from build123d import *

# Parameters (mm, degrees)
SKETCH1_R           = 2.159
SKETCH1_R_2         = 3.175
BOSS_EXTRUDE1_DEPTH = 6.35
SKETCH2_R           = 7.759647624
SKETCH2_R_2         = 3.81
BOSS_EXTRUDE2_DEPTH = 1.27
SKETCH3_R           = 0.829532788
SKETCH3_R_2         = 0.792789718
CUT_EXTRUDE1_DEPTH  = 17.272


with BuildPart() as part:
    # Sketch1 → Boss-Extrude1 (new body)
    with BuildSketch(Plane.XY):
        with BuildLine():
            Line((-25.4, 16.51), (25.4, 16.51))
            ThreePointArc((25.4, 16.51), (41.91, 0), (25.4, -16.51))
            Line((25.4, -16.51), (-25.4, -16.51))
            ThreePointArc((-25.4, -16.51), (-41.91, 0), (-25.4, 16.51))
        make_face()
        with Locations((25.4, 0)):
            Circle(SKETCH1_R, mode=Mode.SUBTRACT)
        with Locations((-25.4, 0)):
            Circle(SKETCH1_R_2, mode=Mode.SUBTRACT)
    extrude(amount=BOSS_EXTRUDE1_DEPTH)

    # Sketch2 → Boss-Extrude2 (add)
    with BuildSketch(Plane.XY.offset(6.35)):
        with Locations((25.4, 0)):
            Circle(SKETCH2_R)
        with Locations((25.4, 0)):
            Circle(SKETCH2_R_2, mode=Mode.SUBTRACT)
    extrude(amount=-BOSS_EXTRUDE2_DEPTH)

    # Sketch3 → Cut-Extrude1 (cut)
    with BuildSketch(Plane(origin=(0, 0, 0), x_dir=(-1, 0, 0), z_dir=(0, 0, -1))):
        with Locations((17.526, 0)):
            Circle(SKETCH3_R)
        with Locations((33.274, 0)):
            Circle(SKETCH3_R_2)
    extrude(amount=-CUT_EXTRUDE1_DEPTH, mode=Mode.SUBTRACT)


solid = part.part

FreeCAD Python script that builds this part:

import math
import FreeCAD as App
import Part
import Sketcher
Q = App.Units.Quantity

doc = App.newDocument("Part")
params = doc.addObject("Spreadsheet::Sheet", "Params")
for row, (alias, value) in enumerate([
    ("sketch1_diameter", "0.17 in"),
    ("sketch1_diameter2", "0.25 in"),
    ("sketch1_width", "2 in"),
    ("sketch1_radius", "0.65 in"),
    ("pad1_length", "0.25 in"),
    ("sketch2_diameter", "0.3 in"),
    ("pad2_length", "0.05 in"),
    ("pocket1_length", "0.68 in"),
], start=1):
    params.set(f"A{row}", alias)
    params.set(f"B{row}", "=" + value)
    params.setAlias(f"B{row}", alias)

body = doc.addObject("PartDesign::Body", "Body")

# Sketch on XY plane
sketch1 = body.newObject("Sketcher::SketchObject", "Sketch")
sketch1.AttachmentSupport = (doc.getObject("XY_Plane"), [""])
sketch1.MapMode = "FlatFace"
sketch1.addGeometry([
    Part.LineSegment(App.Vector(25.4, 16.5, 0), App.Vector(-25.4, 16.5, 0)),  # 0
    Part.ArcOfCircle(Part.Circle(App.Vector(-25.4, 0, 0), App.Vector(0, 0, 1), 16.5), math.radians(90), math.radians(270)),  # 1
    Part.LineSegment(App.Vector(-25.4, -16.5, 0), App.Vector(25.4, -16.5, 0)),  # 2
    Part.ArcOfCircle(Part.Circle(App.Vector(25.4, 0, 0), App.Vector(0, 0, 1), 16.5), math.radians(-90), math.radians(90)),  # 3
    Part.Circle(App.Vector(25.4, 0, 0), App.Vector(0, 0, 1), 2.2),  # 4
    Part.Circle(App.Vector(-25.4, 0, 0), App.Vector(0, 0, 1), 3.2),  # 5
], False)
sketch1.addConstraint([
    Sketcher.Constraint("Tangent", 0, 2, 1, 1),
    Sketcher.Constraint("Tangent", 1, 2, 2, 1),
    Sketcher.Constraint("Tangent", 2, 2, 3, 1),
    Sketcher.Constraint("Tangent", 3, 2, 0, 1),
    Sketcher.Constraint("Horizontal", 0),
    Sketcher.Constraint("Horizontal", 2),
    Sketcher.Constraint("Coincident", 4, 3, 3, 3),
    Sketcher.Constraint("Coincident", 5, 3, 1, 3),
    Sketcher.Constraint("Symmetric", 1, 3, 3, 3, -1, 1),
    Sketcher.Constraint("Diameter", 4, Q("0.17 in")),
    Sketcher.Constraint("Diameter", 5, Q("0.25 in")),
    Sketcher.Constraint("DistanceX", 0, 2, 0, 1, Q("2 in")),
    Sketcher.Constraint("Radius", 1, Q("0.65 in")),
])
sketch1.setExpression("Constraints[9]", "Params.sketch1_diameter")
sketch1.setExpression("Constraints[10]", "Params.sketch1_diameter2")
sketch1.setExpression("Constraints[11]", "Params.sketch1_width")
sketch1.setExpression("Constraints[12]", "Params.sketch1_radius")
pad1 = body.newObject("PartDesign::Pad", "Pad")
pad1.Profile = sketch1
pad1.setExpression("Length", "Params.pad1_length")

# Sketch on XY plane
sketch2 = body.newObject("Sketcher::SketchObject", "Sketch001")
sketch2.AttachmentSupport = (doc.getObject("XY_Plane"), [""])
sketch2.MapMode = "FlatFace"
sketch2.AttachmentOffset = App.Placement(App.Vector(0, 0, 0.25 * 25.4), App.Rotation())
sketch2.addGeometry([
    Part.Circle(App.Vector(25.4, 0, 0), App.Vector(0, 0, 1), 7.8),
    Part.Circle(App.Vector(25.4, 0, 0), App.Vector(0, 0, 1), 3.8),
], False)
sketch2.addConstraint([
    Sketcher.Constraint("Coincident", 1, 3, 0, 3),
    Sketcher.Constraint("PointOnObject", 0, 3, -1),
    Sketcher.Constraint("Diameter", 1, Q("0.3 in")),
    Sketcher.Constraint("DistanceX", -1, 1, 0, 3, Q("1 in")),
    Sketcher.Constraint("Diameter", 0, Q("15.519295 mm")),
])
sketch2.setExpression("Constraints[2]", "Params.sketch2_diameter")
pad2 = body.newObject("PartDesign::Pad", "Pad001")
pad2.Profile = sketch2
pad2.setExpression("Length", "Params.pad2_length")
pad2.Reversed = True

# Sketch on XY plane
sketch3 = body.newObject("Sketcher::SketchObject", "Sketch002")
sketch3.AttachmentSupport = (doc.getObject("XY_Plane"), [""])
sketch3.MapMode = "FlatFace"
sketch3.addGeometry([
    Part.Circle(App.Vector(-17.5, 0, 0), App.Vector(0, 0, 1), 0.8),
    Part.Circle(App.Vector(-33.3, 0, 0), App.Vector(0, 0, 1), 0.8),
], False)
sketch3.addConstraint([
    Sketcher.Constraint("PointOnObject", 0, 3, -1),
    Sketcher.Constraint("PointOnObject", 1, 3, -1),
    Sketcher.Constraint("DistanceX", 0, 3, -1, 1, Q("0.69 in")),
    Sketcher.Constraint("DistanceX", 1, 3, -1, 1, Q("1.31 in")),
    Sketcher.Constraint("Diameter", 1, Q("1.585579 mm")),
    Sketcher.Constraint("Diameter", 0, Q("1.659066 mm")),
])
pocket1 = body.newObject("PartDesign::Pocket", "Pocket")
pocket1.Profile = sketch3
pocket1.setExpression("Length", "Params.pocket1_length")
pocket1.Reversed = True

doc.recompute()
